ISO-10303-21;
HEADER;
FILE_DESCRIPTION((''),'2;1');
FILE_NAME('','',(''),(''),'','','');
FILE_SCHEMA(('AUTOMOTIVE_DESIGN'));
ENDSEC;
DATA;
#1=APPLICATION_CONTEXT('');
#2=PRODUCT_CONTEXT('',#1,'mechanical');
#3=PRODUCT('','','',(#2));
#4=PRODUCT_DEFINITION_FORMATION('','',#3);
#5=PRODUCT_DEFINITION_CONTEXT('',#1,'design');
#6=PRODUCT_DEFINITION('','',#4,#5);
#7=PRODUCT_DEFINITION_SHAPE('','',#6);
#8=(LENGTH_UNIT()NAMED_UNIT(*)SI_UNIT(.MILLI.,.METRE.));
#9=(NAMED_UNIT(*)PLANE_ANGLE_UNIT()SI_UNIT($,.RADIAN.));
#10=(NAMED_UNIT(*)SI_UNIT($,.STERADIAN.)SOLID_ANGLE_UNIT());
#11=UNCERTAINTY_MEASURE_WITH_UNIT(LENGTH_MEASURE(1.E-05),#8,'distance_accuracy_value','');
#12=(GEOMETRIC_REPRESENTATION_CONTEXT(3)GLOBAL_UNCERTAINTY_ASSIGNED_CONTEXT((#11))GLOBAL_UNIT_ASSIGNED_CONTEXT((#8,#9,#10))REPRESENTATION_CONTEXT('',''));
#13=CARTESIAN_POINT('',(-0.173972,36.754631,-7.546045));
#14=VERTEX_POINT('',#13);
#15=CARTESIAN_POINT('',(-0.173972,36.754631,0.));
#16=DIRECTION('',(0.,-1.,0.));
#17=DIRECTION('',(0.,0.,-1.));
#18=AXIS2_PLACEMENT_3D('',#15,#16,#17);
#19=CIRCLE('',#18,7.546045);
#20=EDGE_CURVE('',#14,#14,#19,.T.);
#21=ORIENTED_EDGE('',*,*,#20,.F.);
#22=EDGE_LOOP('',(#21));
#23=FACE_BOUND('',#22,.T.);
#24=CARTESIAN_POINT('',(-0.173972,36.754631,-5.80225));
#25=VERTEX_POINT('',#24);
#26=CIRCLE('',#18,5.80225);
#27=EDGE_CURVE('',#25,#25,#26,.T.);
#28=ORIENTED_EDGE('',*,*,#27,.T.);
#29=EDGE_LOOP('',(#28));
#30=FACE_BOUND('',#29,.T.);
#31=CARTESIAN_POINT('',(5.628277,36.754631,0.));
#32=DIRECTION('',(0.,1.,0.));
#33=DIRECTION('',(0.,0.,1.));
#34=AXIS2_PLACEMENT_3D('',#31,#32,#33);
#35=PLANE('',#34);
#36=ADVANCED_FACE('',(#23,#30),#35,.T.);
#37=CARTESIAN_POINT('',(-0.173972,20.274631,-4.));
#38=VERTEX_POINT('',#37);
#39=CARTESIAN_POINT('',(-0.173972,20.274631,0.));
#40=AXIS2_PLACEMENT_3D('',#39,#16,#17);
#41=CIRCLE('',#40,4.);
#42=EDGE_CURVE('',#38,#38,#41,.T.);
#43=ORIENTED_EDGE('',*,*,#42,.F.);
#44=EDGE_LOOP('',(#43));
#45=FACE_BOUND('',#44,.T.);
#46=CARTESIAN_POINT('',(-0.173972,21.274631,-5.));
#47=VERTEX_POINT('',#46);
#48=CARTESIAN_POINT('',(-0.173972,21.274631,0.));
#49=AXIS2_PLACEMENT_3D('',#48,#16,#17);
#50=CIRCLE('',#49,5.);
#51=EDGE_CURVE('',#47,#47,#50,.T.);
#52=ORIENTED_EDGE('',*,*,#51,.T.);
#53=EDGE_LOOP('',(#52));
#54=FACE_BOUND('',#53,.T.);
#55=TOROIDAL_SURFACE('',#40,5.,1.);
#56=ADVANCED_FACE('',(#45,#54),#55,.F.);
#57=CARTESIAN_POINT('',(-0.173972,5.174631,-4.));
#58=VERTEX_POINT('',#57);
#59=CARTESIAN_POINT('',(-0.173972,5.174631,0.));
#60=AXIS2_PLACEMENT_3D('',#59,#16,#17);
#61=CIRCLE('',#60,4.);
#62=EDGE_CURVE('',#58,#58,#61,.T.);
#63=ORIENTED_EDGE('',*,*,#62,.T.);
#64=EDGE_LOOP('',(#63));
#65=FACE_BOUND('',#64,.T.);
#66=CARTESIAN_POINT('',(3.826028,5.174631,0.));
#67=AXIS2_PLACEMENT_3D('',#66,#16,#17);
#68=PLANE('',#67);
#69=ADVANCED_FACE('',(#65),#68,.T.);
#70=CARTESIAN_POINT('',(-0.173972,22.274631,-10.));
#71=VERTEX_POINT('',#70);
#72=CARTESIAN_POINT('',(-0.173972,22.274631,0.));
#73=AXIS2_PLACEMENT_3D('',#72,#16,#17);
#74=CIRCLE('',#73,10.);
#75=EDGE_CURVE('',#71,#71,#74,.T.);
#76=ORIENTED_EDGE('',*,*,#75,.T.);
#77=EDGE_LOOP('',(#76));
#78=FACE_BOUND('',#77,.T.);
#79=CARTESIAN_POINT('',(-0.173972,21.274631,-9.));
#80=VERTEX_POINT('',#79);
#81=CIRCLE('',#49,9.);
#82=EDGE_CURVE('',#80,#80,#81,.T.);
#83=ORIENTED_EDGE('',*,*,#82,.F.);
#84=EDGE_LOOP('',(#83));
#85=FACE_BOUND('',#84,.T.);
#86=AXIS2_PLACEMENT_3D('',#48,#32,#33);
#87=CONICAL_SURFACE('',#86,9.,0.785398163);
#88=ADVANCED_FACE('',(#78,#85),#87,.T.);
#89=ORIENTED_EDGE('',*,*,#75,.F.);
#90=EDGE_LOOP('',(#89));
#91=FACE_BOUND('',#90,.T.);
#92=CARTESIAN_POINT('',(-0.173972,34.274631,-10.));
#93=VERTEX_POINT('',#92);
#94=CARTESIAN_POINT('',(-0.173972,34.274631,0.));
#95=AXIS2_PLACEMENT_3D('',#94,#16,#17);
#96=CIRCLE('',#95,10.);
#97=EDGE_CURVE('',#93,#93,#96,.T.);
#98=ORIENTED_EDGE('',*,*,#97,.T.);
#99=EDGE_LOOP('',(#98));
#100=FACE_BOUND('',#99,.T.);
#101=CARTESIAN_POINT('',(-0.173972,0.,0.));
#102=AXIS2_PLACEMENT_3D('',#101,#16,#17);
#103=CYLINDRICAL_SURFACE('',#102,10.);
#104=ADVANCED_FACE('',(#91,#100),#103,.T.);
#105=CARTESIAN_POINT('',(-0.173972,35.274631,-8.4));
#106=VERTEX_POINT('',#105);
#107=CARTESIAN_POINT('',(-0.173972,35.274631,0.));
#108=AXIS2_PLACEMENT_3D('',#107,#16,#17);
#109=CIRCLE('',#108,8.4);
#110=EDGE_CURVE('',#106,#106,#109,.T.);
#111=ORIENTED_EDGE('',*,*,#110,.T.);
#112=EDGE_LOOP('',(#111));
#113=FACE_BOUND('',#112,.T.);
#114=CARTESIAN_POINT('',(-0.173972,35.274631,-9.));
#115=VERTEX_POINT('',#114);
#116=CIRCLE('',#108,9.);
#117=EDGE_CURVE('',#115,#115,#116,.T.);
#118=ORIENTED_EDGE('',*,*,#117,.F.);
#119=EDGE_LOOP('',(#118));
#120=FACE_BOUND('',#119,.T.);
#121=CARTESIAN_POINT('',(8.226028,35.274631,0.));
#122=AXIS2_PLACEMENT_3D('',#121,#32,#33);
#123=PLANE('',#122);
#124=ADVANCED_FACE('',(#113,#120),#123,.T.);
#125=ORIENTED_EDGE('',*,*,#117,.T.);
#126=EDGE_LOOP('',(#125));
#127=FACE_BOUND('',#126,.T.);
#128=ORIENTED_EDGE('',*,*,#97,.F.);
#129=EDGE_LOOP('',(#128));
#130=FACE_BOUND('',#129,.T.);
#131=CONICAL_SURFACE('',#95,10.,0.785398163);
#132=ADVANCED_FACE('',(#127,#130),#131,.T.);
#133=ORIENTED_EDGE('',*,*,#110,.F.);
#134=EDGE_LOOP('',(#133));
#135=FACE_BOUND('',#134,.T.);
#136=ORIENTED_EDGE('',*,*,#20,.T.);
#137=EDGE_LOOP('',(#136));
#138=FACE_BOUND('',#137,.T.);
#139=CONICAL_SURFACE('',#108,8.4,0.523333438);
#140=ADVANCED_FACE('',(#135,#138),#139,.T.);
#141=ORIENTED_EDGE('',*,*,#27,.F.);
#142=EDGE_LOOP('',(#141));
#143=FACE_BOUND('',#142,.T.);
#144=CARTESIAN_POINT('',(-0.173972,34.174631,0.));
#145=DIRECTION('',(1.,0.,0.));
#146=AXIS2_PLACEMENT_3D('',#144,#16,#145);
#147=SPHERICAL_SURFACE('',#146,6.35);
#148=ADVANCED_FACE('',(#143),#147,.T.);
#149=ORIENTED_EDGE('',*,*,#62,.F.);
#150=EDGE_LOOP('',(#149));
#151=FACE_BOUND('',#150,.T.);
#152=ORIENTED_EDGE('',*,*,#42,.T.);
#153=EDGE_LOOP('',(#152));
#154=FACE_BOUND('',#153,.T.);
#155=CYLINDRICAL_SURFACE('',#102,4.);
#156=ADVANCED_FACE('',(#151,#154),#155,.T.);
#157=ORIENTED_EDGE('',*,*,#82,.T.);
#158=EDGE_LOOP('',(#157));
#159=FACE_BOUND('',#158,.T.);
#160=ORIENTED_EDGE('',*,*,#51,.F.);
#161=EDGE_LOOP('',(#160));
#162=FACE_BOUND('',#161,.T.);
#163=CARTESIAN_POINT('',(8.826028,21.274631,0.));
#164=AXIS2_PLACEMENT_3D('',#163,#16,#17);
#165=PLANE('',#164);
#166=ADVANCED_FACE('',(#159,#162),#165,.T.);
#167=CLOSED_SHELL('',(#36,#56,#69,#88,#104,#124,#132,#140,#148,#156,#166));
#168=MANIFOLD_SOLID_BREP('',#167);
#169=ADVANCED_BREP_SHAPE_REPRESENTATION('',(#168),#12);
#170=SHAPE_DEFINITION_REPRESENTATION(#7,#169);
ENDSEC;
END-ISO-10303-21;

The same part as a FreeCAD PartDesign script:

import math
import FreeCAD as App
import Part
import Sketcher

V = App.Vector

doc = App.newDocument("Part")
body = doc.addObject("PartDesign::Body", "Body")

sketch1 = body.newObject("Sketcher::SketchObject", "Sketch")
sketch1.AttachmentSupport = (doc.getObject("XY_Plane"), [""])
sketch1.MapMode = "FlatFace"
sketch1.addGeometry(Part.LineSegment(V(7.372073, 36.754631, 0), V(5.628277, 36.754631, 0)), False)
sketch1.addGeometry(Part.ArcOfCircle(Part.Circle(V(-0.173972, 34.174631, 0), V(0, 0, 1), 6.35), math.radians(23.972568), math.radians(90)), False)
sketch1.addGeometry(Part.LineSegment(V(-0.173972, 40.524631, 0), V(-0.173972, 5.174631, 0)), False)
sketch1.addGeometry(Part.LineSegment(V(-0.173972, 5.174631, 0), V(3.826028, 5.174631, 0)), False)
sketch1.addGeometry(Part.LineSegment(V(3.826028, 5.174631, 0), V(3.826028, 20.274631, 0)), False)
sketch1.addGeometry(Part.ArcOfCircle(Part.Circle(V(4.826028, 20.274631, 0), V(0, 0, 1), 1), math.radians(90), math.radians(180)), False)
sketch1.addGeometry(Part.LineSegment(V(4.826028, 21.274631, 0), V(8.826028, 21.274631, 0)), False)
sketch1.addGeometry(Part.LineSegment(V(8.826028, 21.274631, 0), V(9.826028, 22.274631, 0)), False)
sketch1.addGeometry(Part.LineSegment(V(9.826028, 22.274631, 0), V(9.826028, 34.274631, 0)), False)
sketch1.addGeometry(Part.LineSegment(V(9.826028, 34.274631, 0), V(8.826028, 35.274631, 0)), False)
sketch1.addGeometry(Part.LineSegment(V(8.826028, 35.274631, 0), V(8.226028, 35.274631, 0)), False)
sketch1.addGeometry(Part.LineSegment(V(8.226028, 35.274631, 0), V(7.372073, 36.754631, 0)), False)
sketch1.addGeometry(Part.LineSegment(V(-0.173972, 5.174631, 0), V(-0.173972, 40.524631, 0)), True)
sketch1.addConstraint(Sketcher.Constraint("Coincident", 0, 2, 1, 1))
sketch1.addConstraint(Sketcher.Constraint("Coincident", 1, 2, 2, 1))
sketch1.addConstraint(Sketcher.Constraint("Coincident", 2, 2, 3, 1))
sketch1.addConstraint(Sketcher.Constraint("Coincident", 3, 2, 4, 1))
sketch1.addConstraint(Sketcher.Constraint("Tangent", 4, 2, 5, 2))
sketch1.addConstraint(Sketcher.Constraint("Tangent", 5, 1, 6, 1))
sketch1.addConstraint(Sketcher.Constraint("Coincident", 6, 2, 7, 1))
sketch1.addConstraint(Sketcher.Constraint("Coincident", 7, 2, 8, 1))
sketch1.addConstraint(Sketcher.Constraint("Coincident", 8, 2, 9, 1))
sketch1.addConstraint(Sketcher.Constraint("Coincident", 9, 2, 10, 1))
sketch1.addConstraint(Sketcher.Constraint("Coincident", 10, 2, 11, 1))
sketch1.addConstraint(Sketcher.Constraint("Coincident", 11, 2, 0, 1))
sketch1.addConstraint(Sketcher.Constraint("Horizontal", 0))
sketch1.addConstraint(Sketcher.Constraint("Vertical", 2))
sketch1.addConstraint(Sketcher.Constraint("Horizontal", 3))
sketch1.addConstraint(Sketcher.Constraint("Vertical", 4))
sketch1.addConstraint(Sketcher.Constraint("Horizontal", 6))
sketch1.addConstraint(Sketcher.Constraint("Vertical", 8))
sketch1.addConstraint(Sketcher.Constraint("Horizontal", 10))
sketch1.addConstraint(Sketcher.Constraint("Vertical", 12))
sketch1.addConstraint(Sketcher.Constraint("Coincident", 12, 1, 2, 2))
sketch1.addConstraint(Sketcher.Constraint("Perpendicular", 7, 9))
sketch1.addConstraint(Sketcher.Constraint("Vertical", 6, 2, 9, 2))
sketch1.addConstraint(Sketcher.Constraint("Equal", 3, 6))
sketch1.addConstraint(Sketcher.Constraint("Equal", 2, 12))
sketch1.addConstraint(Sketcher.Constraint("Equal", 7, 9))
sketch1.addConstraint(Sketcher.Constraint("Radius", 5, 1.0))
sketch1.addConstraint(Sketcher.Constraint("DistanceX", 3, 1, 3, 2, 4.0))
sketch1.addConstraint(Sketcher.Constraint("DistanceY", 8, 1, 8, 2, 12.0))
sketch1.addConstraint(Sketcher.Constraint("Radius", 1, 6.35))
sketch1.addConstraint(Sketcher.Constraint("DistanceX", 10, 2, 10, 1, 0.6))
sketch1.addConstraint(Sketcher.Constraint("DistanceY", 4, 1, 4, 2, 15.1))
sketch1.addConstraint(Sketcher.Constraint("DistanceX", 1, 3, 5, 3, 5.0))
sketch1.addConstraint(Sketcher.Constraint("DistanceY", 2, 2, 1, 3, 29.0))
sketch1.addConstraint(Sketcher.Constraint("DistanceX", 6, 2, 7, 2, 1.0))
sketch1.addConstraint(Sketcher.Constraint("DistanceY", 1, 3, 0, 2, 2.58))
sketch1.addConstraint(Sketcher.Constraint("DistanceX", 0, 2, 0, 1, 1.743796))
sketch1.addConstraint(Sketcher.Constraint("DistanceY", -1, 1, 1, 3, 34.174631))
sketch1.addConstraint(Sketcher.Constraint("DistanceX", 1, 3, -1, 1, 0.173972))
revolution = body.newObject("PartDesign::Revolution", "Revolution")
revolution.Profile = sketch1
revolution.ReferenceAxis = (sketch1, ["Axis0"])
revolution.Angle = 360

doc.recompute()
